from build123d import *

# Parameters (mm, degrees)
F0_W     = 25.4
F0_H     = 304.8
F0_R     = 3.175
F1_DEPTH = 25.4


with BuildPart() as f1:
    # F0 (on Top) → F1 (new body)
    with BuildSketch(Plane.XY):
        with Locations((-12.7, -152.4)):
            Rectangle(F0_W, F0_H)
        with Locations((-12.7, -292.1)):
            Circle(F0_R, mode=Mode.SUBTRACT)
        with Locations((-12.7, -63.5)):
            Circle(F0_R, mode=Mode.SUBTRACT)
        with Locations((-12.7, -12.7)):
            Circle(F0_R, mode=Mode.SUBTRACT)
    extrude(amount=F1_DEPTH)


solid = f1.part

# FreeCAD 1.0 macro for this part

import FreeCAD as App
import Part
import Sketcher
from FreeCAD import Vector
Q = App.Units.Quantity


def add_polygon(sketch, points):
    """Adds a closed chain of lines whose ends are joined by coincident constraints."""
    first, n = sketch.GeometryCount, len(points)
    for a, b in zip(points, points[1:] + points[:1]):
        sketch.addGeometry(Part.LineSegment(App.Vector(*a, 0), App.Vector(*b, 0)), False)
    for i in range(n):
        sketch.addConstraint(Sketcher.Constraint("Coincident", first + i, 2, first + (i + 1) % n, 1))

doc = App.newDocument("Part")
body = doc.addObject("PartDesign::Body", "Body")

sketch1 = body.newObject("Sketcher::SketchObject", "Sketch")
sketch1.AttachmentSupport = (doc.getObject("XY_Plane"), [""])
sketch1.MapMode = "FlatFace"
add_polygon(sketch1, [(-25.4, 0), (-25.4, -304.8), (0, -304.8), (0, 0)])
sketch1.addGeometry(Part.Circle(Vector(-12.7, -292.1, 0), Vector(0, 0, 1), 3.2), False)
sketch1.addGeometry(Part.Circle(Vector(-12.7, -63.5, 0), Vector(0, 0, 1), 3.2), False)
sketch1.addGeometry(Part.Circle(Vector(-12.7, -12.7, 0), Vector(0, 0, 1), 3.2), False)
sketch1.addConstraint(Sketcher.Constraint("Vertical", 0))
sketch1.addConstraint(Sketcher.Constraint("Horizontal", 1))
sketch1.addConstraint(Sketcher.Constraint("Vertical", 2))
sketch1.addConstraint(Sketcher.Constraint("Horizontal", 3))
sketch1.addConstraint(Sketcher.Constraint("Coincident", 2, 2, -1, 1))
sketch1.addConstraint(Sketcher.Constraint("Equal", 4, 5))
sketch1.addConstraint(Sketcher.Constraint("Equal", 5, 6))
sketch1.addConstraint(Sketcher.Constraint("Vertical", 4, 3, 5, 3))
sketch1.addConstraint(Sketcher.Constraint("Vertical", 5, 3, 6, 3))
sketch1.addConstraint(Sketcher.Constraint("Diameter", 4, Q("0.25 in")))
sketch1.addConstraint(Sketcher.Constraint("DistanceX", 1, 1, 1, 2, Q("1 in")))
sketch1.addConstraint(Sketcher.Constraint("DistanceY", 0, 2, 0, 1, Q("12 in")))
sketch1.addConstraint(Sketcher.Constraint("DistanceY", 4, 3, 5, 3, Q("9 in")))
sketch1.addConstraint(Sketcher.Constraint("DistanceY", 5, 3, 6, 3, Q("2 in")))
sketch1.addConstraint(Sketcher.Constraint("DistanceX", 4, 3, -1, 1, Q("0.5 in")))
sketch1.addConstraint(Sketcher.Constraint("DistanceY", 4, 3, -1, 1, Q("11.5 in")))
pad1 = body.newObject("PartDesign::Pad", "Pad")
pad1.Profile = sketch1
pad1.Length = Q("1 in")

doc.recompute()
